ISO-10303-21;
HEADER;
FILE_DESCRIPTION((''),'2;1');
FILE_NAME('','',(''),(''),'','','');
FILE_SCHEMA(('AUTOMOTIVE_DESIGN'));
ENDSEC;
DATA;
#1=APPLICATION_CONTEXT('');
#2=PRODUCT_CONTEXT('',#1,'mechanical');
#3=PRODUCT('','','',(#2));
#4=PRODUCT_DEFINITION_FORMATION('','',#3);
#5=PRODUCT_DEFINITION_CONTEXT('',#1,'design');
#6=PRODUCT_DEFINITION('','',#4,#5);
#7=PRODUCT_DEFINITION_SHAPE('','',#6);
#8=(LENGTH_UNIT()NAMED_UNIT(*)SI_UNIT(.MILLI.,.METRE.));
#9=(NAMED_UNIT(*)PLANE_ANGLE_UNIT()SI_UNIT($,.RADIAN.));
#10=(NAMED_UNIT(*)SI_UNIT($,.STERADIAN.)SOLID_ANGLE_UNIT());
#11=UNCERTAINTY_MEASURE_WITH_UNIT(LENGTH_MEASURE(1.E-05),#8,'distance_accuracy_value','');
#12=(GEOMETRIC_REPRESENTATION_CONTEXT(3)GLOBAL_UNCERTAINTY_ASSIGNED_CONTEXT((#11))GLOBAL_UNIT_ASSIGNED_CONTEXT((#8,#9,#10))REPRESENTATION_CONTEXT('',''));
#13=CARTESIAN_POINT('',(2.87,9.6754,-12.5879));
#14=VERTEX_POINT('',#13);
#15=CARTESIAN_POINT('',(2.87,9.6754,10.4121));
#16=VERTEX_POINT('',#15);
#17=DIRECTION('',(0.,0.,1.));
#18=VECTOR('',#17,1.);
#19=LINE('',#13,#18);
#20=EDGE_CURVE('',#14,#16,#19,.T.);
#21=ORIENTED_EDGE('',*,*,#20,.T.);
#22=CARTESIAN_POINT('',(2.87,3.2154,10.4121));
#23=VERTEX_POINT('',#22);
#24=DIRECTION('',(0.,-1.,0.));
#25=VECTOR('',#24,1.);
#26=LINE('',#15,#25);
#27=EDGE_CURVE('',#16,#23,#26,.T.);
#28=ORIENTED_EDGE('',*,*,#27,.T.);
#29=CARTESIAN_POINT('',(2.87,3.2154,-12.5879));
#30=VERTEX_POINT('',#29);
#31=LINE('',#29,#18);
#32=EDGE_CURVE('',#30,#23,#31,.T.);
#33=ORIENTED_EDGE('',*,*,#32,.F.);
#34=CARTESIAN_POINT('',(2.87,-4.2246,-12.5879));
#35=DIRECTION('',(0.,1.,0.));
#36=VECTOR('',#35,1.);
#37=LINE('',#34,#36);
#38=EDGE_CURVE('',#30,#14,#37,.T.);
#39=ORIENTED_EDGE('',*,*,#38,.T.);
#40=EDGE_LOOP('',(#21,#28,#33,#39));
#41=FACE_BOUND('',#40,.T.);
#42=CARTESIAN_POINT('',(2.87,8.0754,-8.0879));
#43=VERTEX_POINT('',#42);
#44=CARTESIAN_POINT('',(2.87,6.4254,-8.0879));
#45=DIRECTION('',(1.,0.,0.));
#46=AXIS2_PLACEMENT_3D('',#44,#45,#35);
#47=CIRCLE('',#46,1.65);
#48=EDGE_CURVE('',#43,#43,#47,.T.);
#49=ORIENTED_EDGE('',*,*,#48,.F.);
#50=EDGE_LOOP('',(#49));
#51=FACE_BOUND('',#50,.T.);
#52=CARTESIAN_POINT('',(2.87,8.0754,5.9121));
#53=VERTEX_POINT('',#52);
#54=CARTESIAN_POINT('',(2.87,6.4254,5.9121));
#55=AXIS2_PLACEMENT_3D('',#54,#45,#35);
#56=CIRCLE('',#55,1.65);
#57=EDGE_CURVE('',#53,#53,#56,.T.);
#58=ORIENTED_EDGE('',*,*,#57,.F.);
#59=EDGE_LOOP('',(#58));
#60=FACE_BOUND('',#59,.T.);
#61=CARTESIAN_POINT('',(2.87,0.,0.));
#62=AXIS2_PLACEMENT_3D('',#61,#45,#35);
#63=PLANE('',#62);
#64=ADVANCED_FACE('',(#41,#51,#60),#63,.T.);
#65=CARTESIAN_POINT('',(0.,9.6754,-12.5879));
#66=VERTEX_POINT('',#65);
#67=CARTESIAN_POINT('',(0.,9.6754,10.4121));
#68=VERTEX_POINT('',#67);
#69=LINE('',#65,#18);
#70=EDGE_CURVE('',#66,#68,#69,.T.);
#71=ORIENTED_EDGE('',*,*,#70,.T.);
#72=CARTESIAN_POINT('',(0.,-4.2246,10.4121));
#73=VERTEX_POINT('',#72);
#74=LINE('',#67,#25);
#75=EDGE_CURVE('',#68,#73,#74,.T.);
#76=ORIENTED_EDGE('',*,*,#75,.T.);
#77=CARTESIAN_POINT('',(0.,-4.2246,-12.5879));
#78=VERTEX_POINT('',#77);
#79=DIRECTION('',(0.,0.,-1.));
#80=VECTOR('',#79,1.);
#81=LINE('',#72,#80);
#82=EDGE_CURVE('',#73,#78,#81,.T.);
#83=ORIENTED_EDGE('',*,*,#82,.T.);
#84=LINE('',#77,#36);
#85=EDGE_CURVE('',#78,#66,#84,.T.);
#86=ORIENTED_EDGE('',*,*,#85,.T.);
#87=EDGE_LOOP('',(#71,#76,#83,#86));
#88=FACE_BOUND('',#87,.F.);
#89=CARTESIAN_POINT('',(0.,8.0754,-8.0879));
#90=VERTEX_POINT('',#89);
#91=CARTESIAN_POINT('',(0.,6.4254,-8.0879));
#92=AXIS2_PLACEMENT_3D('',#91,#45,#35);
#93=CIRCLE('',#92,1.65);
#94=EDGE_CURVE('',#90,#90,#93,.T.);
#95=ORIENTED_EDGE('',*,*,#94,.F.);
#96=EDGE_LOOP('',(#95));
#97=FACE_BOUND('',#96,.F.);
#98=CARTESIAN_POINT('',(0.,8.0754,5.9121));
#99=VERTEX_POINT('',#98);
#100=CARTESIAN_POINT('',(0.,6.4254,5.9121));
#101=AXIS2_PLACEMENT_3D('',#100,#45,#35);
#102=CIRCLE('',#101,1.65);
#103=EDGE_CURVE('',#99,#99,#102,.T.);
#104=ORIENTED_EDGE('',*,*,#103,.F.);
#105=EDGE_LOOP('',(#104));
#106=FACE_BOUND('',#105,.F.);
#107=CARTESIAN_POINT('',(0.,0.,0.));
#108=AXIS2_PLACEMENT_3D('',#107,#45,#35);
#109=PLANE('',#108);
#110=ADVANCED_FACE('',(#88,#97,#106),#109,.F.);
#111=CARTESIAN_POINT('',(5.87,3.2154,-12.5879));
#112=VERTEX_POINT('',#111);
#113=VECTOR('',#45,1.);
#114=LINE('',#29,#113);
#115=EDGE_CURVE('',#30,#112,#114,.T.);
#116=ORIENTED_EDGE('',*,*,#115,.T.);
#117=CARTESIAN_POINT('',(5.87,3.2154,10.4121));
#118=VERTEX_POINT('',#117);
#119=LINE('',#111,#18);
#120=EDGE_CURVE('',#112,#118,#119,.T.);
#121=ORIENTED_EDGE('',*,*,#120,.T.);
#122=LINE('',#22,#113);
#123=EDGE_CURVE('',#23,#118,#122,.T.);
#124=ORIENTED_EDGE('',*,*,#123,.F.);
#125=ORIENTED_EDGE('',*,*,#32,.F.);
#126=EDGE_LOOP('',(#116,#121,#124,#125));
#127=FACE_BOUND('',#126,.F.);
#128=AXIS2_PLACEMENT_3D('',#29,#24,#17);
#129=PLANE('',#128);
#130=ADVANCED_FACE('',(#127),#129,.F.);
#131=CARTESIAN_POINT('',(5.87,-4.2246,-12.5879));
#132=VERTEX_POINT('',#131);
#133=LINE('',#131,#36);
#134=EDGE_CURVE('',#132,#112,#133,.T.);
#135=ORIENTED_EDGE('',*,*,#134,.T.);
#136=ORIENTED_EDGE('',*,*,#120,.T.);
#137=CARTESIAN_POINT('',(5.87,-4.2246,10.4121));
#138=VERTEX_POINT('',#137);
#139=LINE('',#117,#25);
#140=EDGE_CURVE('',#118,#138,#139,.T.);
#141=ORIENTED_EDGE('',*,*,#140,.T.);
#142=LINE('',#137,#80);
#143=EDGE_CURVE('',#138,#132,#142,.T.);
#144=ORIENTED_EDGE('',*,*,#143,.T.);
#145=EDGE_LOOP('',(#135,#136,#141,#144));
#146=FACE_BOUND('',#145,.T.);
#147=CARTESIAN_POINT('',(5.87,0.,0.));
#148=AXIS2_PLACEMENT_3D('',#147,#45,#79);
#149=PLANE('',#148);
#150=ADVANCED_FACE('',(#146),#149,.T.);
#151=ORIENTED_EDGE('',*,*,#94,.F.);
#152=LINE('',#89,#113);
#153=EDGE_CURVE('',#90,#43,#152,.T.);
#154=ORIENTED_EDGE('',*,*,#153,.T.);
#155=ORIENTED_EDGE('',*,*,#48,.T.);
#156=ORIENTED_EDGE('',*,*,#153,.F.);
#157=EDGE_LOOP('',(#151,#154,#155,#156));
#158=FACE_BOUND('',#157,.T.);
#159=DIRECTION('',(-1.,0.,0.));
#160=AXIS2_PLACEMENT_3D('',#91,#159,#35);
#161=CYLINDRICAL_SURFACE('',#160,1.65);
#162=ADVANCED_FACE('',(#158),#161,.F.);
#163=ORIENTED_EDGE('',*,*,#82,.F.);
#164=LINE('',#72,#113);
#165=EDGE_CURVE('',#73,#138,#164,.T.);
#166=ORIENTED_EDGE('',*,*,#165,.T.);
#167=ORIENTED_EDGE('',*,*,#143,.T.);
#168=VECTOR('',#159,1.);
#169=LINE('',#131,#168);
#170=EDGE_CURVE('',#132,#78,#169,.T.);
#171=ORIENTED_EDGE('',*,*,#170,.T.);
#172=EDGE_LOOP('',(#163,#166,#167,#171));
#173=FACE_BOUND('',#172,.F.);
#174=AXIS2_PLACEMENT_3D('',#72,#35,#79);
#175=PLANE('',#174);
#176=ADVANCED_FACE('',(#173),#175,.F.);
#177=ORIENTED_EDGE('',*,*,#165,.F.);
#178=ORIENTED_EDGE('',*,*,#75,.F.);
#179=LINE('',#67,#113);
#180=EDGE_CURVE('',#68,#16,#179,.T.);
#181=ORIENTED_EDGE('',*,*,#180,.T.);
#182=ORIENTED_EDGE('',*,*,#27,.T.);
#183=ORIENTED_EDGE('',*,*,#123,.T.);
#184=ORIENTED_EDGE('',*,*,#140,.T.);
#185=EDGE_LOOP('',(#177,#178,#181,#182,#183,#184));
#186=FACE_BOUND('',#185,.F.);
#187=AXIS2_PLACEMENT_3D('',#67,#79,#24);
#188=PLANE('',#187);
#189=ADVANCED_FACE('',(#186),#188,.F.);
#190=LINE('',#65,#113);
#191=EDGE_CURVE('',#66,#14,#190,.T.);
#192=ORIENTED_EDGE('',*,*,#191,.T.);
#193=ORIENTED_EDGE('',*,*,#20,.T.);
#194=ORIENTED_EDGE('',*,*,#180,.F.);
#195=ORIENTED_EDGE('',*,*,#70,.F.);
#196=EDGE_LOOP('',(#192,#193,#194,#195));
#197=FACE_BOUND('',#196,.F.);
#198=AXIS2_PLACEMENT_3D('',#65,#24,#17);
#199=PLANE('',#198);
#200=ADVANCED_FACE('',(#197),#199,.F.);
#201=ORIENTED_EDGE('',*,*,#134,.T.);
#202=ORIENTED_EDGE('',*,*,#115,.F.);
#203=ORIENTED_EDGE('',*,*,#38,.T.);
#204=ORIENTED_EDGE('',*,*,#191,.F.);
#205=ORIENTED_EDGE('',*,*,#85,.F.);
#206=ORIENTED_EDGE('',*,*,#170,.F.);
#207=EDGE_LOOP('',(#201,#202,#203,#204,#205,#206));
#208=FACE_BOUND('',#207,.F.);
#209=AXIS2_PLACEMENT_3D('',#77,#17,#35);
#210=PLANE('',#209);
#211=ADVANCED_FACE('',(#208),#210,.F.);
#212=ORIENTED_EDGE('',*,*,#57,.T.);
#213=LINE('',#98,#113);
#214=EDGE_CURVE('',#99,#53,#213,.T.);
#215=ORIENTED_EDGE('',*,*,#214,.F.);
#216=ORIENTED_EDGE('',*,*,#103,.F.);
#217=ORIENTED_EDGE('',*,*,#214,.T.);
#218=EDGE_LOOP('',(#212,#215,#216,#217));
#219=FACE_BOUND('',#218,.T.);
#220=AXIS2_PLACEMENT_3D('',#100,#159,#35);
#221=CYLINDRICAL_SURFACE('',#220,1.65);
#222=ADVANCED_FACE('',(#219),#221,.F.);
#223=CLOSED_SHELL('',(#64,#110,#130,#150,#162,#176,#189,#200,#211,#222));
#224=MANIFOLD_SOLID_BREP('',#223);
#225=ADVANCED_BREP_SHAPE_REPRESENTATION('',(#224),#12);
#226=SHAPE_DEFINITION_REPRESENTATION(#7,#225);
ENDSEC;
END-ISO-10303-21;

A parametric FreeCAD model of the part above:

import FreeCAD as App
import Part
import Sketcher

V = App.Vector

doc = App.newDocument("Part")
body = doc.addObject("PartDesign::Body", "Body")

# Sketch on YZ plane
sketch1 = doc.addObject("Sketcher::SketchObject", "Sketch")
body.addObject(sketch1)
sketch1.AttachmentSupport = (doc.YZ_Plane, [""])
sketch1.MapMode = "FlatFace"
sketch1.addGeometry([
    Part.LineSegment(V(9.7, -12.6, 0), V(9.7, 10.4, 0)),  # 0
    Part.LineSegment(V(9.7, 10.4, 0), V(-4.2, 10.4, 0)),  # 1
    Part.LineSegment(V(-4.2, 10.4, 0), V(-4.2, -12.6, 0)),  # 2
    Part.LineSegment(V(-4.2, -12.6, 0), V(9.7, -12.6, 0)),  # 3
    Part.Circle(V(6.4, -8.1, 0), V(0, 0, 1), 1.6),  # 4
    Part.Circle(V(6.4, 5.9, 0), V(0, 0, 1), 1.6),  # 5
], False)
sketch1.addConstraint([
    Sketcher.Constraint("Coincident", 0, 2, 1, 1),
    Sketcher.Constraint("Coincident", 1, 2, 2, 1),
    Sketcher.Constraint("Coincident", 2, 2, 3, 1),
    Sketcher.Constraint("Coincident", 3, 2, 0, 1),
    Sketcher.Constraint("Vertical", 0),
    Sketcher.Constraint("Horizontal", 1),
    Sketcher.Constraint("Vertical", 2),
    Sketcher.Constraint("Horizontal", 3),
    Sketcher.Constraint("Equal", 4, 5),
    Sketcher.Constraint("Vertical", 4, 3, 5, 3),
    Sketcher.Constraint("Diameter", 4, 3.3),
    Sketcher.Constraint("DistanceY", 0, 1, 0, 2, 23.0),
    Sketcher.Constraint("DistanceX", 1, 2, 1, 1, 13.9),
    Sketcher.Constraint("DistanceY", 4, 3, 5, 3, 14.0),
    Sketcher.Constraint("DistanceY", 5, 3, 0, 2, 4.5),
    Sketcher.Constraint("DistanceX", 5, 3, 0, 2, 3.25),
    Sketcher.Constraint("DistanceY", 4, 3, -1, 1, 8.088),
    Sketcher.Constraint("DistanceX", -1, 1, 4, 3, 6.4254),
])
pad1 = doc.addObject("PartDesign::Pad", "Pad")
body.addObject(pad1)
pad1.Profile = sketch1
pad1.Length = 2.87

# Sketch on YZ plane
sketch2 = doc.addObject("Sketcher::SketchObject", "Sketch001")
body.addObject(sketch2)
sketch2.AttachmentSupport = (doc.YZ_Plane, [""])
sketch2.MapMode = "FlatFace"
sketch2.AttachmentOffset = App.Placement(V(0, 0, 2.87), App.Rotation())
sketch2.addGeometry([
    Part.LineSegment(V(-4, 10, 0), V(-4, -13, 0)),
    Part.LineSegment(V(-4, -13, 0), V(3, -13, 0)),
    Part.LineSegment(V(3, -13, 0), V(3, 10, 0)),
    Part.LineSegment(V(3, 10, 0), V(-4, 10, 0)),
], False)
sketch2.addConstraint([
    Sketcher.Constraint("Coincident", 0, 2, 1, 1),
    Sketcher.Constraint("Coincident", 1, 2, 2, 1),
    Sketcher.Constraint("Coincident", 2, 2, 3, 1),
    Sketcher.Constraint("Coincident", 3, 2, 0, 1),
    Sketcher.Constraint("Vertical", 0),
    Sketcher.Constraint("Horizontal", 1),
    Sketcher.Constraint("Vertical", 2),
    Sketcher.Constraint("Horizontal", 3),
    Sketcher.Constraint("DistanceX", 1, 1, 1, 2, 7.44),
    Sketcher.Constraint("DistanceY", 0, 2, 0, 1, 23.0),
    Sketcher.Constraint("DistanceY", 0, 2, -1, 1, 12.588),
    Sketcher.Constraint("DistanceX", 0, 2, -1, 1, 4.2246),
])
pad2 = doc.addObject("PartDesign::Pad", "Pad001")
body.addObject(pad2)
pad2.Profile = sketch2
pad2.Length = 3

doc.recompute()
